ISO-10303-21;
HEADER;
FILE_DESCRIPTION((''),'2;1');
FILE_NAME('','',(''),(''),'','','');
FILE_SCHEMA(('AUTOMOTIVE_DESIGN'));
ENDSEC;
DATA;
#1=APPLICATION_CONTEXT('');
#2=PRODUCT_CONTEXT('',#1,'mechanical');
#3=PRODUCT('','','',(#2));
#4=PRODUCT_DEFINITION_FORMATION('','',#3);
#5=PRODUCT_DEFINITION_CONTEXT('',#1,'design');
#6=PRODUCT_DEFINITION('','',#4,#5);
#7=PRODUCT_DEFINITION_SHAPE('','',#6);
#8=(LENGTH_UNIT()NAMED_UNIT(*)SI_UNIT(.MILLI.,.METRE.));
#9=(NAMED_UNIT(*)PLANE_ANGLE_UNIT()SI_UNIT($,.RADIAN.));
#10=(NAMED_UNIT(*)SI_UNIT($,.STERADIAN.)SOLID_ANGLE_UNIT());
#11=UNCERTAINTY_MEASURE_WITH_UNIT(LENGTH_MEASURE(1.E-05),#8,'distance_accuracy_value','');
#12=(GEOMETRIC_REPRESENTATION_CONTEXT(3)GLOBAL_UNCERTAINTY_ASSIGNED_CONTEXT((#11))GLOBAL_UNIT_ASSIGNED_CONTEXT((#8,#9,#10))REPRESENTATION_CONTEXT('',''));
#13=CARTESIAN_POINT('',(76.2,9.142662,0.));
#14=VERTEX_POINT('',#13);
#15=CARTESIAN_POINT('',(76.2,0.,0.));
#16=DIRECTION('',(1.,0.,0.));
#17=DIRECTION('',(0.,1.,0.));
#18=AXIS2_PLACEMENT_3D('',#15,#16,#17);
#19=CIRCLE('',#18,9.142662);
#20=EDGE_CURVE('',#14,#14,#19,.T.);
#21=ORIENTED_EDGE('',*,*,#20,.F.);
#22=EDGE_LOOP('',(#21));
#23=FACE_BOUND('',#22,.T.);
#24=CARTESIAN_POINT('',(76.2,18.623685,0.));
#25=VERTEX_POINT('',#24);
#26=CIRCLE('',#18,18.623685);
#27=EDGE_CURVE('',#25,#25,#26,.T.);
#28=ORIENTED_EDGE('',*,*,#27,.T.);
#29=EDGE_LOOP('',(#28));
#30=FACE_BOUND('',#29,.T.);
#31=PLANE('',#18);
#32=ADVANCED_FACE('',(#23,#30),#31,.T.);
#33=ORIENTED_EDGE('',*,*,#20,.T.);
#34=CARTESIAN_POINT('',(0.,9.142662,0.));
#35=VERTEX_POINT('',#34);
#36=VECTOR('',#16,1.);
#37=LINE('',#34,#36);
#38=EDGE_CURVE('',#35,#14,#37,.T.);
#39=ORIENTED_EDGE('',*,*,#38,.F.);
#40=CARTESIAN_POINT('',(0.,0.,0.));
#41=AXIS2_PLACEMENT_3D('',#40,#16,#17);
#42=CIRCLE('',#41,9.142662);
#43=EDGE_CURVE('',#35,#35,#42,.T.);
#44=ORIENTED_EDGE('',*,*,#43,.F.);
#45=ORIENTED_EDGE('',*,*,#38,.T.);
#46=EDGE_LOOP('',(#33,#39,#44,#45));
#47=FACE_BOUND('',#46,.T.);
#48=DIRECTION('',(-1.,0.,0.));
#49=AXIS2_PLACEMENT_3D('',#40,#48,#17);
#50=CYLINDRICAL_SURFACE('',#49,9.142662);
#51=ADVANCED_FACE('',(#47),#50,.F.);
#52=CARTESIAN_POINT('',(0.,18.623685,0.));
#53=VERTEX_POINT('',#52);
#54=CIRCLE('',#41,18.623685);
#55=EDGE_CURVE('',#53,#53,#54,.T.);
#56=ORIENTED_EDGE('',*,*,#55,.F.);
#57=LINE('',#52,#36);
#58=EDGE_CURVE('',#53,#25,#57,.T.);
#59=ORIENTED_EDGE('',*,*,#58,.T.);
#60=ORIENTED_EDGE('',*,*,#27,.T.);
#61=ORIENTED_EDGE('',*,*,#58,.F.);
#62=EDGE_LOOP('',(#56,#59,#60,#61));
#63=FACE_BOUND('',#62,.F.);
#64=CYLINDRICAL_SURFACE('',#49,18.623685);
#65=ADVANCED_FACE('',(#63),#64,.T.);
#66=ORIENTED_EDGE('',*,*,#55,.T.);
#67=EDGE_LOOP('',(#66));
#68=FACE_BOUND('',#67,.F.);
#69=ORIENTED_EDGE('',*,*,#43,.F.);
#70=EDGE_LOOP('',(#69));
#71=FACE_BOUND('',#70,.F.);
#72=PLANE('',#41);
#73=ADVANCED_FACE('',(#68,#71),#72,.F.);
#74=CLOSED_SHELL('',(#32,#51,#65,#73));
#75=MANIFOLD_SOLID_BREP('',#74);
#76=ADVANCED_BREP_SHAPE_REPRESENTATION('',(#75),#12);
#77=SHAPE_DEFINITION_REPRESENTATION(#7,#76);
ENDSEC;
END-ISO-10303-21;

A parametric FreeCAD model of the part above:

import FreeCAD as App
import Part
import Sketcher
from FreeCAD import Vector
Q = App.Units.Quantity

doc = App.newDocument("Part")
body = doc.addObject("PartDesign::Body", "Body")

sketch1 = body.newObject("Sketcher::SketchObject", "Sketch")
sketch1.AttachmentSupport = (doc.getObject("YZ_Plane"), [""])
sketch1.MapMode = "FlatFace"
sketch1.addGeometry(Part.Circle(Vector(0, 0, 0), Vector(0, 0, 1), 18.623685), False)
sketch1.addConstraint([
    Sketcher.Constraint("Coincident", 0, 3, -1, 1),
    Sketcher.Constraint("Diameter", 0, Q("37.24737 mm")),
])
pad1 = body.newObject("PartDesign::Pad", "Pad")
pad1.Profile = sketch1
pad1.Length = Q("3 in")

sketch2 = body.newObject("Sketcher::SketchObject", "Sketch001")
sketch2.AttachmentSupport = (doc.getObject("YZ_Plane"), [""])
sketch2.MapMode = "FlatFace"
sketch2.addGeometry(Part.Circle(Vector(0, 0, 0), Vector(0, 0, 1), 9.142662), False)
sketch2.addConstraint([
    Sketcher.Constraint("Coincident", 0, 3, -1, 1),
    Sketcher.Constraint("Diameter", 0, Q("18.285324 mm")),
])
pocket1 = body.newObject("PartDesign::Pocket", "Pocket")
pocket1.Profile = sketch2
pocket1.Length = Q("3 in")
pocket1.Reversed = True

doc.recompute()
